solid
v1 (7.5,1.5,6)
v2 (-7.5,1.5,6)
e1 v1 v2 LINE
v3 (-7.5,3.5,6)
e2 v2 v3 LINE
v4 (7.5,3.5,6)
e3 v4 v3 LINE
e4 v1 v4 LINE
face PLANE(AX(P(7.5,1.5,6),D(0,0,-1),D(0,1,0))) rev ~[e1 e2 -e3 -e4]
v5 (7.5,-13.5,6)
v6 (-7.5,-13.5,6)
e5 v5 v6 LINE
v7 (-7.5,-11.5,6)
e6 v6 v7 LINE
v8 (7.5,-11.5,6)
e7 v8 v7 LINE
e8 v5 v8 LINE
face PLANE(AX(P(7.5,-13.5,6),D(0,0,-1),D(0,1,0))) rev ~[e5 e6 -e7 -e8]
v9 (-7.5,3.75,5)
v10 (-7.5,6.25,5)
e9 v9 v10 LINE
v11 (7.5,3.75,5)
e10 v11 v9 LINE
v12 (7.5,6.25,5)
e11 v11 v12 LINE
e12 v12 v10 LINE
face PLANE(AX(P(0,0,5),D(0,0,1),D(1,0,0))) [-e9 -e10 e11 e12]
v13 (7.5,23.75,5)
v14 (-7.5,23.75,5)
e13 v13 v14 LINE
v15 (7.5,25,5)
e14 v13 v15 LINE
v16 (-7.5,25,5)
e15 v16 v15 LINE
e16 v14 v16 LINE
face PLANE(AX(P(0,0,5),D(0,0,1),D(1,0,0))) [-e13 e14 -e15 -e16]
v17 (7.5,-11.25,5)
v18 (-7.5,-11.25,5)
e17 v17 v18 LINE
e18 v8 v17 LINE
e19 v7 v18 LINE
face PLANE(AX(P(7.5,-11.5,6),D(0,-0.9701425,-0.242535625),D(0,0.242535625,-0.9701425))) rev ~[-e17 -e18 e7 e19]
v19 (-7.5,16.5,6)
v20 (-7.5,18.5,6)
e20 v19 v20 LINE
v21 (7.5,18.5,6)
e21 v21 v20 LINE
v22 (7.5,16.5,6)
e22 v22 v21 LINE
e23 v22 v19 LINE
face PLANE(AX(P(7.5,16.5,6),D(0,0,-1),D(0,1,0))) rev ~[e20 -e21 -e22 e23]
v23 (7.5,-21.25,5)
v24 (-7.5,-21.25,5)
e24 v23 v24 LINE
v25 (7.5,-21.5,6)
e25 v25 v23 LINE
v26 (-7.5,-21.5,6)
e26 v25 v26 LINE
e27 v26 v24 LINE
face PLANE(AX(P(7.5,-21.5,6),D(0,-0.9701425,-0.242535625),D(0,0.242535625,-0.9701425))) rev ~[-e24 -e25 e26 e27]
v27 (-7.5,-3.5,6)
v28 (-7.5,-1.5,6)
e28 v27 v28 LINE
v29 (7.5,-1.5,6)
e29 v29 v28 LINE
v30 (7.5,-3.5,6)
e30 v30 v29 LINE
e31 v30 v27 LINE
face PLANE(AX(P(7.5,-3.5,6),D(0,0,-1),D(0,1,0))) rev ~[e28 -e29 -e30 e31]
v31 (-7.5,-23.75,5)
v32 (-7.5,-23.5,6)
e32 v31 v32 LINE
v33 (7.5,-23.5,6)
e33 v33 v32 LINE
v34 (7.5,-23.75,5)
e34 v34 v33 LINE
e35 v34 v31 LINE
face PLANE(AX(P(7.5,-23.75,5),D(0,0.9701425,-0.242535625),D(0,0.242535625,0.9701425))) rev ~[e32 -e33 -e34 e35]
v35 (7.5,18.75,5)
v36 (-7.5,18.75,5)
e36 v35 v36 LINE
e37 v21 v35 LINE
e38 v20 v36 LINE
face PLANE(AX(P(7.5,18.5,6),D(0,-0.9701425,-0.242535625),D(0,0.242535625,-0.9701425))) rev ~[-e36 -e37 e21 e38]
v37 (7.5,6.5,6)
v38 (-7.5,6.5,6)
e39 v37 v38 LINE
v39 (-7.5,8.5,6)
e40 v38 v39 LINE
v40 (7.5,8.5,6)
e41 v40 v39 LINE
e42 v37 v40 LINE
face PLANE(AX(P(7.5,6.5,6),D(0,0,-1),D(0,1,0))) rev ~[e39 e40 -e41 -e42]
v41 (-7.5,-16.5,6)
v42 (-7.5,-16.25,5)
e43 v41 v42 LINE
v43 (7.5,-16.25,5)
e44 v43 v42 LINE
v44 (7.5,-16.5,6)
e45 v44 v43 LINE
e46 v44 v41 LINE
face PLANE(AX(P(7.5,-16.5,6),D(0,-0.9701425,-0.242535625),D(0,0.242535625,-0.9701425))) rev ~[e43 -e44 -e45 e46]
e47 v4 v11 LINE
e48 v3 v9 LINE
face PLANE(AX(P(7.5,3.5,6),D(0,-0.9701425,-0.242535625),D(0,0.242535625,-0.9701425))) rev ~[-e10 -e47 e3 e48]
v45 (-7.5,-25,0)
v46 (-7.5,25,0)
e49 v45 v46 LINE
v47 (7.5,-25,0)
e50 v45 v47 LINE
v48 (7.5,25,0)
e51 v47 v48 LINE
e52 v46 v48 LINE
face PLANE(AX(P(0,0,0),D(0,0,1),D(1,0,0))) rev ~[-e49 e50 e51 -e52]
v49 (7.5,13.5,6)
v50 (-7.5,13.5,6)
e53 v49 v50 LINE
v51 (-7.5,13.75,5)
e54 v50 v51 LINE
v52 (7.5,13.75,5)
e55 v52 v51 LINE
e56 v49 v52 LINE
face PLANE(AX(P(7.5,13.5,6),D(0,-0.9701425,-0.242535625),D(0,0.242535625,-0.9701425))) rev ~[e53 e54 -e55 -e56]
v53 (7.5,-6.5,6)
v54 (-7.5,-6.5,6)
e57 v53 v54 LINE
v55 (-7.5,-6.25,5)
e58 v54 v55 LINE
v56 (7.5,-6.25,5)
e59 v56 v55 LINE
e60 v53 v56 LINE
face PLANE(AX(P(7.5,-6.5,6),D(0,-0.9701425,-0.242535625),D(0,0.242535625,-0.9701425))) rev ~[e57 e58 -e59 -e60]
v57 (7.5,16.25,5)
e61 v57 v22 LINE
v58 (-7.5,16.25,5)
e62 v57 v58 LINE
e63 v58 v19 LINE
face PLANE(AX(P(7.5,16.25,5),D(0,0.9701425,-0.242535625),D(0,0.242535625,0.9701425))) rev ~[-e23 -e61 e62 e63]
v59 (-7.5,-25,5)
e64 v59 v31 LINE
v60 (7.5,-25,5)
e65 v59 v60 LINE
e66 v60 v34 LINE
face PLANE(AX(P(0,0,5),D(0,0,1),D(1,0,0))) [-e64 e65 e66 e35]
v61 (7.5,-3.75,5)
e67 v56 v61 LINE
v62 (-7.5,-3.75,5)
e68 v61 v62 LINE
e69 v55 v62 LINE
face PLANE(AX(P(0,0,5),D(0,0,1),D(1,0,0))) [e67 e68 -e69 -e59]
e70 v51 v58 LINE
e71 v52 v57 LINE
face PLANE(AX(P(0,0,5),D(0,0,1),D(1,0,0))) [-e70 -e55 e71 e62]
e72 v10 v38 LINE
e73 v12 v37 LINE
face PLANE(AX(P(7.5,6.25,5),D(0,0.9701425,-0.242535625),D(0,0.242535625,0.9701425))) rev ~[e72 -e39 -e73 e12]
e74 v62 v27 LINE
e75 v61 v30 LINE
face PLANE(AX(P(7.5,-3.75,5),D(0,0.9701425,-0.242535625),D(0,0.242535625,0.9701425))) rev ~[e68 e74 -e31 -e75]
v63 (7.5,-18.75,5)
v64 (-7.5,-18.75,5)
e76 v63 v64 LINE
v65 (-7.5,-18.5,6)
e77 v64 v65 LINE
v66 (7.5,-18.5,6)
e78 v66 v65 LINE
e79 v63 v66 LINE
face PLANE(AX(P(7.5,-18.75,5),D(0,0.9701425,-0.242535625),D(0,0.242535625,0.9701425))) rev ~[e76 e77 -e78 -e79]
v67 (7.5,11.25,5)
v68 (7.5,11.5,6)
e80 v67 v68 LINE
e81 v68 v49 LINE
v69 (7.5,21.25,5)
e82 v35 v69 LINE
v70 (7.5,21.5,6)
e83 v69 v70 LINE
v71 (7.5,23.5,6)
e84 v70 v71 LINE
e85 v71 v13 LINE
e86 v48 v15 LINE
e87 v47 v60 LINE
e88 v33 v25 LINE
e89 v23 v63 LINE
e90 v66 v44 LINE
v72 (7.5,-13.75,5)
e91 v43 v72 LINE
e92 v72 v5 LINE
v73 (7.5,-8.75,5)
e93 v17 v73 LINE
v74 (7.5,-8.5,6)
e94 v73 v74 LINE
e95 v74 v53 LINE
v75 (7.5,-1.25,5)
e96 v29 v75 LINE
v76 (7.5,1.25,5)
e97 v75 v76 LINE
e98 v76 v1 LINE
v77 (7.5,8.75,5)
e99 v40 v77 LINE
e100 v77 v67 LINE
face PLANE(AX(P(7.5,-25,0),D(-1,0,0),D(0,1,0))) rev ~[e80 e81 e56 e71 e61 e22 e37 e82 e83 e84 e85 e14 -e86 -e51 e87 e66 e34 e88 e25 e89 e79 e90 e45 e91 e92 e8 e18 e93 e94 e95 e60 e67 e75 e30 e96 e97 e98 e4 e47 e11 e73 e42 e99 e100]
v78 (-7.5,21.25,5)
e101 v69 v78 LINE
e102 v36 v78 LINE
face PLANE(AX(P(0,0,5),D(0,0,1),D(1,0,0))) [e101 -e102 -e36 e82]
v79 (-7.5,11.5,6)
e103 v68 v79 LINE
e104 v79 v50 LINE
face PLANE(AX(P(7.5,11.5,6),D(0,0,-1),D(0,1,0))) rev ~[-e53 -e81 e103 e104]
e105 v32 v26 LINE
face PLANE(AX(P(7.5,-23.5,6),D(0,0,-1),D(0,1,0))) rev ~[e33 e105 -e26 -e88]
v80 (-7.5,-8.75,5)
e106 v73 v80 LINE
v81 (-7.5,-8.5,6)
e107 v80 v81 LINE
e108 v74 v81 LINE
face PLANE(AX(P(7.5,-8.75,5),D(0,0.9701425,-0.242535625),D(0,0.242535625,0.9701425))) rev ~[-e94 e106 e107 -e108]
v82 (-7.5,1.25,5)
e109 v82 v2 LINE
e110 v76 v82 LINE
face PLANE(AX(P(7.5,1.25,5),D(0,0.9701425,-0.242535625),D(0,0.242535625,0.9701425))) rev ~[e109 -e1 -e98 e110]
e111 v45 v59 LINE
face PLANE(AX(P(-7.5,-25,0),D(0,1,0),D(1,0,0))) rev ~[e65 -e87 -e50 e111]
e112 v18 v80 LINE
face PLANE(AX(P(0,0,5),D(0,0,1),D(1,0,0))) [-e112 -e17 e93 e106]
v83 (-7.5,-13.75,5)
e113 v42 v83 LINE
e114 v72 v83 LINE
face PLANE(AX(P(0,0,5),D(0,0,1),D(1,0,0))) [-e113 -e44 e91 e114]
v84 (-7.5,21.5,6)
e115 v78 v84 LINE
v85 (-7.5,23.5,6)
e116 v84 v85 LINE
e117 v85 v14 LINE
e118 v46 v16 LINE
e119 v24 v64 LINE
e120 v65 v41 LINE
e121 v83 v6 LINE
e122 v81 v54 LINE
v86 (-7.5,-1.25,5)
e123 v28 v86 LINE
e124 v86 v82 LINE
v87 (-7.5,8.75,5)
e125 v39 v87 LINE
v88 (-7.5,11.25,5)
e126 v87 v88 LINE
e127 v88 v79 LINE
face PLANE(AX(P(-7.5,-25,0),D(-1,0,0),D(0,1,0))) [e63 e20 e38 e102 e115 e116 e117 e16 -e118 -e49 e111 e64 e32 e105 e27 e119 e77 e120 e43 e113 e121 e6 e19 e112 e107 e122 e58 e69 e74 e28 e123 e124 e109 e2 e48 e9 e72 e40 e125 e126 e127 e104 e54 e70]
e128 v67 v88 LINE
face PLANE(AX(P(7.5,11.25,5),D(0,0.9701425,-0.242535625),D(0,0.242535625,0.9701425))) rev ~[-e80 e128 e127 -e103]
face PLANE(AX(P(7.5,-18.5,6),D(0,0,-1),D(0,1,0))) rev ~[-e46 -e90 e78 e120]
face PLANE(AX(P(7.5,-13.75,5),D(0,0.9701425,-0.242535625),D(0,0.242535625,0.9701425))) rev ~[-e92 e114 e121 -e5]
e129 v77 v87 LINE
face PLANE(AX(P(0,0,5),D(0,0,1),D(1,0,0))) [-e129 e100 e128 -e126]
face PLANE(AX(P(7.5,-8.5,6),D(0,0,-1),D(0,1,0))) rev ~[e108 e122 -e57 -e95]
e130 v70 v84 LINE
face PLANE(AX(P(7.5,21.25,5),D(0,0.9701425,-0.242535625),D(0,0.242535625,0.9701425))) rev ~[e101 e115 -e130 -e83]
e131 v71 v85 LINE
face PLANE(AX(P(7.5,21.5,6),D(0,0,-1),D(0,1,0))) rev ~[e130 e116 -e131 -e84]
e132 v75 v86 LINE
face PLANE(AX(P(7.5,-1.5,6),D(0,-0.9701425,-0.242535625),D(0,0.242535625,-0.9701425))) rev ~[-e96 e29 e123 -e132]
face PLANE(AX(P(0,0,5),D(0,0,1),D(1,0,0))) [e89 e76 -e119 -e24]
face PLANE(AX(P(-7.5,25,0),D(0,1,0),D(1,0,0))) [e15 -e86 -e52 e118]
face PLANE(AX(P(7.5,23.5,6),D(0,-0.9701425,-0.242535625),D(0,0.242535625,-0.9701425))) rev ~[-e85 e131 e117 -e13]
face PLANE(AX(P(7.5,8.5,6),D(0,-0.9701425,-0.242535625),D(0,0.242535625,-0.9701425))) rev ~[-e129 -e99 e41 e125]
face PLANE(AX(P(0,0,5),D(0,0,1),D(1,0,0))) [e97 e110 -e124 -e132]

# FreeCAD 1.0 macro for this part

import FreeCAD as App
import Part
import Sketcher
Q = App.Units.Quantity


def add_polygon(sketch, points):
    """Adds a closed chain of lines whose ends are joined by coincident constraints."""
    first, n = sketch.GeometryCount, len(points)
    for a, b in zip(points, points[1:] + points[:1]):
        sketch.addGeometry(Part.LineSegment(App.Vector(*a, 0), App.Vector(*b, 0)), False)
    for i in range(n):
        sketch.addConstraint(Sketcher.Constraint("Coincident", first + i, 2, first + (i + 1) % n, 1))

doc = App.newDocument("Part")
body = doc.addObject("PartDesign::Body", "Body")

sketch1 = body.newObject("Sketcher::SketchObject", "Sketch")
sketch1.AttachmentSupport = (doc.getObject("XY_Plane"), [""])
sketch1.MapMode = "FlatFace"
add_polygon(sketch1, [(-8, 25), (-8, -25), (8, -25), (8, 25)])
sketch1.addConstraint([
    Sketcher.Constraint("Vertical", 0),
    Sketcher.Constraint("Horizontal", 1),
    Sketcher.Constraint("Vertical", 2),
    Sketcher.Constraint("Horizontal", 3),
    Sketcher.Constraint("Symmetric", 0, 2, 2, 2, -1, 1),
    Sketcher.Constraint("DistanceX", 1, 1, 1, 2, Q("15 mm")),
    Sketcher.Constraint("DistanceY", 0, 2, 0, 1, Q("50 mm")),
])
pad1 = body.newObject("PartDesign::Pad", "Pad")
pad1.Profile = sketch1
pad1.Length = 5

sketch2 = body.newObject("Sketcher::SketchObject", "Sketch001")
sketch2.AttachmentSupport = (doc.getObject("YZ_Plane"), [""])
sketch2.MapMode = "FlatFace"
sketch2.AttachmentOffset = App.Placement(App.Vector(0, 0, 7.5), App.Rotation())
add_polygon(sketch2, [(-23.5, 6), (-23.8, 5), (-21.2, 5), (-21.5, 6)])
add_polygon(sketch2, [(-18.5, 6), (-18.8, 5), (-16.2, 5), (-16.5, 6)])
add_polygon(sketch2, [(-13.5, 6), (-13.8, 5), (-11.2, 5), (-11.5, 6)])
add_polygon(sketch2, [(-8.5, 6), (-8.8, 5), (-6.2, 5), (-6.5, 6)])
add_polygon(sketch2, [(-3.5, 6), (-3.8, 5), (-1.2, 5), (-1.5, 6)])
add_polygon(sketch2, [(1.5, 6), (1.2, 5), (3.8, 5), (3.5, 6)])
add_polygon(sketch2, [(6.5, 6), (6.2, 5), (8.8, 5), (8.5, 6)])
add_polygon(sketch2, [(11.5, 6), (11.2, 5), (13.8, 5), (13.5, 6)])
add_polygon(sketch2, [(16.5, 6), (16.2, 5), (18.8, 5), (18.5, 6)])
add_polygon(sketch2, [(21.5, 6), (21.2, 5), (23.8, 5), (23.5, 6)])
sketch2.addConstraint([
    Sketcher.Constraint("Horizontal", 1),
    Sketcher.Constraint("Horizontal", 3),
    Sketcher.Constraint("Horizontal", 5),
    Sketcher.Constraint("Horizontal", 7),
    Sketcher.Constraint("Horizontal", 9),
    Sketcher.Constraint("Horizontal", 11),
    Sketcher.Constraint("Horizontal", 13),
    Sketcher.Constraint("Horizontal", 15),
    Sketcher.Constraint("Horizontal", 17),
    Sketcher.Constraint("Horizontal", 19),
    Sketcher.Constraint("Horizontal", 21),
    Sketcher.Constraint("Horizontal", 23),
    Sketcher.Constraint("Horizontal", 25),
    Sketcher.Constraint("Horizontal", 27),
    Sketcher.Constraint("Horizontal", 29),
    Sketcher.Constraint("Horizontal", 31),
    Sketcher.Constraint("Horizontal", 33),
    Sketcher.Constraint("Horizontal", 35),
    Sketcher.Constraint("Horizontal", 37),
    Sketcher.Constraint("Horizontal", 39),
    Sketcher.Constraint("Symmetric", 17, 2, 20, 2, -2),
    Sketcher.Constraint("Symmetric", 19, 2, 22, 2, -2),
    Sketcher.Constraint("Symmetric", 13, 2, 24, 2, -2),
    Sketcher.Constraint("Symmetric", 15, 2, 26, 2, -2),
    Sketcher.Constraint("Symmetric", 9, 2, 28, 2, -2),
    Sketcher.Constraint("Symmetric", 11, 2, 30, 2, -2),
    Sketcher.Constraint("Symmetric", 5, 2, 32, 2, -2),
    Sketcher.Constraint("Symmetric", 7, 2, 34, 2, -2),
    Sketcher.Constraint("Symmetric", 1, 2, 36, 2, -2),
    Sketcher.Constraint("Symmetric", 3, 2, 38, 2, -2),
    Sketcher.Constraint("Parallel", 0, 4),
    Sketcher.Constraint("Parallel", 2, 6),
    Sketcher.Constraint("Parallel", 4, 8),
    Sketcher.Constraint("Parallel", 6, 10),
    Sketcher.Constraint("Parallel", 8, 12),
    Sketcher.Constraint("Parallel", 10, 14),
    Sketcher.Constraint("Parallel", 12, 16),
    Sketcher.Constraint("Parallel", 14, 18),
    Sketcher.Constraint("Parallel", 16, 20),
    Sketcher.Constraint("Parallel", 18, 22),
    Sketcher.Constraint("Parallel", 20, 24),
    Sketcher.Constraint("Parallel", 22, 26),
    Sketcher.Constraint("Parallel", 24, 28),
    Sketcher.Constraint("Parallel", 26, 30),
    Sketcher.Constraint("Parallel", 28, 32),
    Sketcher.Constraint("Parallel", 30, 34),
    Sketcher.Constraint("Parallel", 32, 36),
    Sketcher.Constraint("Parallel", 34, 38),
    Sketcher.Constraint("Horizontal", 1, 2, 4, 2),
    Sketcher.Constraint("Horizontal", 3, 2, 6, 2),
    Sketcher.Constraint("Horizontal", 5, 2, 8, 2),
    Sketcher.Constraint("Horizontal", 7, 2, 10, 2),
    Sketcher.Constraint("Horizontal", 9, 2, 12, 2),
    Sketcher.Constraint("Horizontal", 11, 2, 14, 2),
    Sketcher.Constraint("Horizontal", 13, 2, 16, 2),
    Sketcher.Constraint("Horizontal", 15, 2, 18, 2),
    Sketcher.Constraint("Equal", 1, 5),
    Sketcher.Constraint("Equal", 5, 9),
    Sketcher.Constraint("Equal", 9, 13),
    Sketcher.Constraint("Equal", 13, 17),
    Sketcher.Constraint("Equal", 17, 21),
    Sketcher.Constraint("DistanceX", 3, 2, 3, 1, Q("2 mm")),
    Sketcher.Constraint("DistanceX", 1, 1, 1, 2, Q("2.5 mm")),
    Sketcher.Constraint("DistanceY", -1, 1, 0, 2, Q("5 mm")),
    Sketcher.Constraint("DistanceY", -1, 1, 2, 2, Q("6 mm")),
    Sketcher.Constraint("DistanceX", 0, 2, 4, 2, Q("5 mm")),
    Sketcher.Constraint("DistanceX", 4, 2, 8, 2, Q("5 mm")),
    Sketcher.Constraint("DistanceX", 8, 2, 12, 2, Q("5 mm")),
    Sketcher.Constraint("DistanceX", 12, 2, 16, 2, Q("5 mm")),
    Sketcher.Constraint("DistanceX", 16, 2, 20, 2, Q("5 mm")),
])
pad2 = body.newObject("PartDesign::Pad", "Pad001")
pad2.Profile = sketch2
pad2.Length = 15
pad2.Reversed = True

doc.recompute()
